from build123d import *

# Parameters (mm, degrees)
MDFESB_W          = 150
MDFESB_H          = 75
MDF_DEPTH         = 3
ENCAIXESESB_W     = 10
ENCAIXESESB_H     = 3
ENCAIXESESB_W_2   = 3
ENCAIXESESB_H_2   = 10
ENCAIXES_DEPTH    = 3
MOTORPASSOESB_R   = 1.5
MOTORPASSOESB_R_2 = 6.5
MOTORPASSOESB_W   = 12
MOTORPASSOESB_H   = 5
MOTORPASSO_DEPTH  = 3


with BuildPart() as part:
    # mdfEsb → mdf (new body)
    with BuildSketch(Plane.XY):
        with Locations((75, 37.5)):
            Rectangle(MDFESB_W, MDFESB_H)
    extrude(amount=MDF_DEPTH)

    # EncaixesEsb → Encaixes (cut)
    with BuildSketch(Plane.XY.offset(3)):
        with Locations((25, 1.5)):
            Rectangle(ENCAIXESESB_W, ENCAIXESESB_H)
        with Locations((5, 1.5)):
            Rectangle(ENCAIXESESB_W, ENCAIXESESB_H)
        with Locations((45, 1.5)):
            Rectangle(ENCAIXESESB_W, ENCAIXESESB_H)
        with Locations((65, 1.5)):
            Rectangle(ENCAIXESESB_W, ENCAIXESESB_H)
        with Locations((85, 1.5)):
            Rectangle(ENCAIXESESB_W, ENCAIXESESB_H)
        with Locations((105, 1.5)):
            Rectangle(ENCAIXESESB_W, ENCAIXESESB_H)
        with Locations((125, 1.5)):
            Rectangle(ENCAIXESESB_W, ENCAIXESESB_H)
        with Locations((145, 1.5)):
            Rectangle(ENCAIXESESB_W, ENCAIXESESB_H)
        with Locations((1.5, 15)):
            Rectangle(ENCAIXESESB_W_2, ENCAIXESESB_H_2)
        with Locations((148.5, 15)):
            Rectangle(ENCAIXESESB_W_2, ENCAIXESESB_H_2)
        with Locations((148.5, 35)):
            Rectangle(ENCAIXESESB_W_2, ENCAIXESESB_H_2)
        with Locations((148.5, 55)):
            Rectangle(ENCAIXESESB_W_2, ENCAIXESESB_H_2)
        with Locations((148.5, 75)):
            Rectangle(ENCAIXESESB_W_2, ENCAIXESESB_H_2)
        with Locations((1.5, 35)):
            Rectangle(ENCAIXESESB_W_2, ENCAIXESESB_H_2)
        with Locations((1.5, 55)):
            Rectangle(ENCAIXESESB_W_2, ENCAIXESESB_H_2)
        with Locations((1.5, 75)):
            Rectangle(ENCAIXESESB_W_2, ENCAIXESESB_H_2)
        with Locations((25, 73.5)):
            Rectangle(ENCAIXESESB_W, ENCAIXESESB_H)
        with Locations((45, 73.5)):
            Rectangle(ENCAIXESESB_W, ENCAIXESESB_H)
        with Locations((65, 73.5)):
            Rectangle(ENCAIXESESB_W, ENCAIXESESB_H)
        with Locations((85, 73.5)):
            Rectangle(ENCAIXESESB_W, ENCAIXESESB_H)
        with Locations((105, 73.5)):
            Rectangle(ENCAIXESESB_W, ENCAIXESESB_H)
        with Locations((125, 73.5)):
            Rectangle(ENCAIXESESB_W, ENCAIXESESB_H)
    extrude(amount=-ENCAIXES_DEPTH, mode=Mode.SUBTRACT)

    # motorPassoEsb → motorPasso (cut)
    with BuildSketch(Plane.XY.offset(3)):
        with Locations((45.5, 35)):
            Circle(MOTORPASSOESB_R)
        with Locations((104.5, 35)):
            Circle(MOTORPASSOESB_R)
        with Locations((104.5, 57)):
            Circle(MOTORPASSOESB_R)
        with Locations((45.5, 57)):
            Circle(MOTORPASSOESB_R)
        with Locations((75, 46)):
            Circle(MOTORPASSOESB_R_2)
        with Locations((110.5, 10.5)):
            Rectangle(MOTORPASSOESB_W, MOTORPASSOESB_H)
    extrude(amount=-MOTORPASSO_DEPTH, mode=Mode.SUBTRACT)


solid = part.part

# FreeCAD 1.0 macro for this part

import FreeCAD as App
import Part
import Sketcher


def add_polygon(sketch, points):
    """Adds a closed chain of lines whose ends are joined by coincident constraints."""
    first, n = sketch.GeometryCount, len(points)
    for a, b in zip(points, points[1:] + points[:1]):
        sketch.addGeometry(Part.LineSegment(App.Vector(*a, 0), App.Vector(*b, 0)), False)
    for i in range(n):
        sketch.addConstraint(Sketcher.Constraint("Coincident", first + i, 2, first + (i + 1) % n, 1))

doc = App.newDocument("Part")
params = doc.addObject("Spreadsheet::Sheet", "Params")
for row, (alias, value) in enumerate([
    ("sketch1_width", "150 mm"),
    ("sketch1_height", "75 mm"),
    ("pad1_length", "3 mm"),
    ("sketch2_width", "10 mm"),
    ("sketch2_width2", "3 mm"),
    ("pocket1_length", "3 mm"),
    ("sketch3_diameter", "3 mm"),
    ("sketch3_diameter2", "13 mm"),
    ("sketch3_width", "12 mm"),
    ("sketch3_height", "5 mm"),
    ("pocket2_length", "3 mm"),
], start=1):
    params.set(f"A{row}", alias)
    params.set(f"B{row}", "=" + value)
    params.setAlias(f"B{row}", alias)

body = doc.addObject("PartDesign::Body", "Body")

# Sketch on XY plane
sketch1 = doc.addObject("Sketcher::SketchObject", "Sketch")
body.addObject(sketch1)
sketch1.AttachmentSupport = (doc.XY_Plane, [""])
sketch1.MapMode = "FlatFace"
add_polygon(sketch1, [(0, 75), (0, 0), (150, 0), (150, 75)])  # lines 0-3
sketch1.addConstraint([
    Sketcher.Constraint("Vertical", 0),
    Sketcher.Constraint("Horizontal", 1),
    Sketcher.Constraint("Vertical", 2),
    Sketcher.Constraint("Horizontal", 3),
    Sketcher.Constraint("Coincident", 0, 2, -1, 1),
    Sketcher.Constraint("DistanceX", 1, 1, 1, 2, 150.0),
    Sketcher.Constraint("DistanceY", 0, 2, 0, 1, 75.0),
])
sketch1.setExpression("Constraints[9]", "Params.sketch1_width")
sketch1.setExpression("Constraints[10]", "Params.sketch1_height")
pad1 = doc.addObject("PartDesign::Pad", "Pad")
body.addObject(pad1)
pad1.Profile = sketch1
pad1.setExpression("Length", "Params.pad1_length")

# Sketch on XY plane
sketch2 = doc.addObject("Sketcher::SketchObject", "Sketch001")
body.addObject(sketch2)
sketch2.AttachmentSupport = (doc.XY_Plane, [""])
sketch2.MapMode = "FlatFace"
sketch2.AttachmentOffset = App.Placement(App.Vector(0, 0, 3), App.Rotation())
add_polygon(sketch2, [(20, 3), (20, 0), (30, 0), (30, 3)])  # lines 0-3
add_polygon(sketch2, [(0, 3), (0, 0), (10, 0), (10, 3)])  # lines 4-7
add_polygon(sketch2, [(40, 3), (40, 0), (50, 0), (50, 3)])  # lines 8-11
add_polygon(sketch2, [(60, 3), (60, 0), (70, 0), (70, 3)])  # lines 12-15
add_polygon(sketch2, [(80, 3), (80, 0), (90, 0), (90, 3)])  # lines 16-19
add_polygon(sketch2, [(100, 3), (100, 0), (110, 0), (110, 3)])  # lines 20-23
add_polygon(sketch2, [(120, 3), (120, 0), (130, 0), (130, 3)])  # lines 24-27
add_polygon(sketch2, [(140, 3), (140, 0), (150, 0), (150, 3)])  # lines 28-31
add_polygon(sketch2, [(0, 20), (0, 10), (3, 10), (3, 20)])  # lines 32-35
add_polygon(sketch2, [(147, 20), (147, 10), (150, 10), (150, 20)])  # lines 36-39
add_polygon(sketch2, [(147, 40), (147, 30), (150, 30), (150, 40)])  # lines 40-43
add_polygon(sketch2, [(147, 60), (147, 50), (150, 50), (150, 60)])  # lines 44-47
add_polygon(sketch2, [(147, 80), (147, 70), (150, 70), (150, 80)])  # lines 48-51
add_polygon(sketch2, [(0, 40), (0, 30), (3, 30), (3, 40)])  # lines 52-55
add_polygon(sketch2, [(0, 60), (0, 50), (3, 50), (3, 60)])  # lines 56-59
add_polygon(sketch2, [(0, 80), (0, 70), (3, 70), (3, 80)])  # lines 60-63
add_polygon(sketch2, [(20, 75), (20, 72), (30, 72), (30, 75)])  # lines 64-67
add_polygon(sketch2, [(40, 75), (40, 72), (50, 72), (50, 75)])  # lines 68-71
add_polygon(sketch2, [(60, 75), (60, 72), (70, 72), (70, 75)])  # lines 72-75
add_polygon(sketch2, [(80, 75), (80, 72), (90, 72), (90, 75)])  # lines 76-79
add_polygon(sketch2, [(100, 75), (100, 72), (110, 72), (110, 75)])  # lines 80-83
add_polygon(sketch2, [(120, 75), (120, 72), (130, 72), (130, 75)])  # lines 84-87
sketch2.addConstraint([
    Sketcher.Constraint("Vertical", 0),
    Sketcher.Constraint("Horizontal", 1),
    Sketcher.Constraint("Vertical", 2),
    Sketcher.Constraint("Horizontal", 3),
    Sketcher.Constraint("Vertical", 4),
    Sketcher.Constraint("Horizontal", 5),
    Sketcher.Constraint("Vertical", 6),
    Sketcher.Constraint("Horizontal", 7),
    Sketcher.Constraint("Vertical", 8),
    Sketcher.Constraint("Horizontal", 9),
    Sketcher.Constraint("Vertical", 10),
    Sketcher.Constraint("Horizontal", 11),
    Sketcher.Constraint("Vertical", 12),
    Sketcher.Constraint("Horizontal", 13),
    Sketcher.Constraint("Vertical", 14),
    Sketcher.Constraint("Horizontal", 15),
    Sketcher.Constraint("Vertical", 16),
    Sketcher.Constraint("Horizontal", 17),
    Sketcher.Constraint("Vertical", 18),
    Sketcher.Constraint("Horizontal", 19),
    Sketcher.Constraint("Vertical", 20),
    Sketcher.Constraint("Horizontal", 21),
    Sketcher.Constraint("Vertical", 22),
    Sketcher.Constraint("Horizontal", 23),
    Sketcher.Constraint("Vertical", 24),
    Sketcher.Constraint("Horizontal", 25),
    Sketcher.Constraint("Vertical", 26),
    Sketcher.Constraint("Horizontal", 27),
    Sketcher.Constraint("Vertical", 28),
    Sketcher.Constraint("Horizontal", 29),
    Sketcher.Constraint("Vertical", 30),
    Sketcher.Constraint("Horizontal", 31),
    Sketcher.Constraint("Vertical", 32),
    Sketcher.Constraint("Horizontal", 33),
    Sketcher.Constraint("Vertical", 34),
    Sketcher.Constraint("Horizontal", 35),
    Sketcher.Constraint("Vertical", 36),
    Sketcher.Constraint("Horizontal", 37),
    Sketcher.Constraint("Vertical", 38),
    Sketcher.Constraint("Horizontal", 39),
    Sketcher.Constraint("Vertical", 40),
    Sketcher.Constraint("Horizontal", 41),
    Sketcher.Constraint("Vertical", 42),
    Sketcher.Constraint("Horizontal", 43),
    Sketcher.Constraint("Vertical", 44),
    Sketcher.Constraint("Horizontal", 45),
    Sketcher.Constraint("Vertical", 46),
    Sketcher.Constraint("Horizontal", 47),
    Sketcher.Constraint("Vertical", 48),
    Sketcher.Constraint("Horizontal", 49),
    Sketcher.Constraint("Vertical", 50),
    Sketcher.Constraint("Horizontal", 51),
    Sketcher.Constraint("Vertical", 52),
    Sketcher.Constraint("Horizontal", 53),
    Sketcher.Constraint("Vertical", 54),
    Sketcher.Constraint("Horizontal", 55),
    Sketcher.Constraint("Vertical", 56),
    Sketcher.Constraint("Horizontal", 57),
    Sketcher.Constraint("Vertical", 58),
    Sketcher.Constraint("Horizontal", 59),
    Sketcher.Constraint("Vertical", 60),
    Sketcher.Constraint("Horizontal", 61),
    Sketcher.Constraint("Vertical", 62),
    Sketcher.Constraint("Horizontal", 63),
    Sketcher.Constraint("Vertical", 64),
    Sketcher.Constraint("Horizontal", 65),
    Sketcher.Constraint("Vertical", 66),
    Sketcher.Constraint("Horizontal", 67),
    Sketcher.Constraint("Vertical", 68),
    Sketcher.Constraint("Horizontal", 69),
    Sketcher.Constraint("Vertical", 70),
    Sketcher.Constraint("Horizontal", 71),
    Sketcher.Constraint("Vertical", 72),
    Sketcher.Constraint("Horizontal", 73),
    Sketcher.Constraint("Vertical", 74),
    Sketcher.Constraint("Horizontal", 75),
    Sketcher.Constraint("Vertical", 76),
    Sketcher.Constraint("Horizontal", 77),
    Sketcher.Constraint("Vertical", 78),
    Sketcher.Constraint("Horizontal", 79),
    Sketcher.Constraint("Vertical", 80),
    Sketcher.Constraint("Horizontal", 81),
    Sketcher.Constraint("Vertical", 82),
    Sketcher.Constraint("Horizontal", 83),
    Sketcher.Constraint("Vertical", 84),
    Sketcher.Constraint("Horizontal", 85),
    Sketcher.Constraint("Vertical", 86),
    Sketcher.Constraint("Horizontal", 87),
    Sketcher.Constraint("Coincident", 4, 2, -1, 1),
    Sketcher.Constraint("PointOnObject", 0, 2, -1),
    Sketcher.Constraint("PointOnObject", 8, 2, -1),
    Sketcher.Constraint("PointOnObject", 12, 2, -1),
    Sketcher.Constraint("PointOnObject", 16, 2, -1),
    Sketcher.Constraint("PointOnObject", 20, 2, -1),
    Sketcher.Constraint("PointOnObject", 24, 2, -1),
    Sketcher.Constraint("PointOnObject", 28, 2, -1),
    Sketcher.Constraint("PointOnObject", 32, 2, -2),
    Sketcher.Constraint("PointOnObject", 52, 2, -2),
    Sketcher.Constraint("PointOnObject", 56, 2, -2),
    Sketcher.Constraint("PointOnObject", 60, 2, -2),
    Sketcher.Constraint("Horizontal", 3, 2, 6, 2),
    Sketcher.Constraint("Horizontal", 7, 2, 10, 2),
    Sketcher.Constraint("Horizontal", 11, 2, 14, 2),
    Sketcher.Constraint("Horizontal", 15, 2, 18, 2),
    Sketcher.Constraint("Horizontal", 19, 2, 22, 2),
    Sketcher.Constraint("Horizontal", 23, 2, 26, 2),
    Sketcher.Constraint("Horizontal", 27, 2, 30, 2),
    Sketcher.Constraint("Horizontal", 33, 2, 36, 2),
    Sketcher.Constraint("Horizontal", 35, 2, 38, 2),
    Sketcher.Constraint("Horizontal", 41, 2, 52, 2),
    Sketcher.Constraint("Horizontal", 43, 2, 54, 2),
    Sketcher.Constraint("Horizontal", 45, 2, 56, 2),
    Sketcher.Constraint("Horizontal", 47, 2, 58, 2),
    Sketcher.Constraint("Horizontal", 49, 2, 60, 2),
    Sketcher.Constraint("Horizontal", 51, 2, 62, 2),
    Sketcher.Constraint("Horizontal", 65, 2, 68, 2),
    Sketcher.Constraint("Horizontal", 67, 2, 70, 2),
    Sketcher.Constraint("Horizontal", 69, 2, 72, 2),
    Sketcher.Constraint("Horizontal", 71, 2, 74, 2),
    Sketcher.Constraint("Horizontal", 73, 2, 76, 2),
    Sketcher.Constraint("Horizontal", 75, 2, 78, 2),
    Sketcher.Constraint("Horizontal", 77, 2, 80, 2),
    Sketcher.Constraint("Horizontal", 79, 2, 82, 2),
    Sketcher.Constraint("Horizontal", 81, 2, 84, 2),
    Sketcher.Constraint("Horizontal", 83, 2, 86, 2),
    Sketcher.Constraint("Vertical", 30, 2, 37, 2),
    Sketcher.Constraint("Vertical", 39, 2, 40, 2),
    Sketcher.Constraint("Vertical", 38, 2, 41, 2),
    Sketcher.Constraint("Vertical", 43, 2, 44, 2),
    Sketcher.Constraint("Vertical", 42, 2, 45, 2),
    Sketcher.Constraint("Vertical", 47, 2, 48, 2),
    Sketcher.Constraint("Vertical", 46, 2, 49, 2),
    Sketcher.Constraint("Vertical", 34, 2, 53, 2),
    Sketcher.Constraint("Vertical", 54, 2, 57, 2),
    Sketcher.Constraint("Vertical", 58, 2, 61, 2),
    Sketcher.Constraint("Vertical", 3, 2, 64, 2),
    Sketcher.Constraint("Vertical", 2, 2, 65, 2),
    Sketcher.Constraint("Vertical", 11, 2, 68, 2),
    Sketcher.Constraint("Vertical", 10, 2, 69, 2),
    Sketcher.Constraint("Vertical", 15, 2, 72, 2),
    Sketcher.Constraint("Vertical", 14, 2, 73, 2),
    Sketcher.Constraint("Vertical", 19, 2, 76, 2),
    Sketcher.Constraint("Vertical", 18, 2, 77, 2),
    Sketcher.Constraint("Vertical", 23, 2, 80, 2),
    Sketcher.Constraint("Vertical", 22, 2, 81, 2),
    Sketcher.Constraint("Vertical", 27, 2, 84, 2),
    Sketcher.Constraint("Vertical", 26, 2, 85, 2),
    Sketcher.Constraint("Equal", 3, 5),
    Sketcher.Constraint("Equal", 7, 9),
    Sketcher.Constraint("Equal", 11, 13),
    Sketcher.Constraint("Equal", 15, 17),
    Sketcher.Constraint("Equal", 19, 21),
    Sketcher.Constraint("Equal", 23, 25),
    Sketcher.Constraint("Equal", 27, 29),
    Sketcher.Constraint("Equal", 35, 37),
    Sketcher.Constraint("Equal", 63, 0),
    Sketcher.Constraint("Equal", 87, 32),
    Sketcher.Constraint("Equal", 38, 40),
    Sketcher.Constraint("Equal", 42, 44),
    Sketcher.Constraint("Equal", 46, 48),
    Sketcher.Constraint("Equal", 30, 64),
    Sketcher.Constraint("DistanceX", 1, 1, 1, 2, 10.0),
    Sketcher.Constraint("DistanceX", 33, 1, 33, 2, 3.0),
    Sketcher.Constraint("DistanceX", -1, 1, 0, 2, 20.0),
    Sketcher.Constraint("DistanceX", -1, 1, 8, 2, 40.0),
    Sketcher.Constraint("DistanceX", -1, 1, 12, 2, 60.0),
    Sketcher.Constraint("DistanceX", -1, 1, 16, 2, 80.0),
    Sketcher.Constraint("DistanceX", -1, 1, 20, 2, 100.0),
    Sketcher.Constraint("DistanceX", -1, 1, 24, 2, 120.0),
    Sketcher.Constraint("DistanceX", -1, 1, 28, 2, 140.0),
    Sketcher.Constraint("DistanceY", -1, 1, 32, 2, 10.0),
    Sketcher.Constraint("DistanceY", -1, 1, 40, 2, 30.0),
    Sketcher.Constraint("DistanceY", -1, 1, 44, 2, 50.0),
    Sketcher.Constraint("DistanceY", -1, 1, 48, 2, 70.0),
    Sketcher.Constraint("DistanceY", -1, 1, 64, 2, 72.0),
])
sketch2.setExpression("Constraints[249]", "Params.sketch2_width")
sketch2.setExpression("Constraints[250]", "Params.sketch2_width2")
pocket1 = doc.addObject("PartDesign::Pocket", "Pocket")
body.addObject(pocket1)
pocket1.Profile = sketch2
pocket1.setExpression("Length", "Params.pocket1_length")

# Sketch on XY plane
sketch3 = doc.addObject("Sketcher::SketchObject", "Sketch002")
body.addObject(sketch3)
sketch3.AttachmentSupport = (doc.XY_Plane, [""])
sketch3.MapMode = "FlatFace"
sketch3.AttachmentOffset = App.Placement(App.Vector(0, 0, 3), App.Rotation())
sketch3.addGeometry(Part.Circle(App.Vector(45.5, 35, 0), App.Vector(0, 0, 1), 1.5), False)  # 0
sketch3.addGeometry(Part.Circle(App.Vector(104.5, 35, 0), App.Vector(0, 0, 1), 1.5), False)  # 1
sketch3.addGeometry(Part.Circle(App.Vector(104.5, 57, 0), App.Vector(0, 0, 1), 1.5), False)  # 2
sketch3.addGeometry(Part.Circle(App.Vector(45.5, 57, 0), App.Vector(0, 0, 1), 1.5), False)  # 3
sketch3.addGeometry(Part.Circle(App.Vector(75, 46, 0), App.Vector(0, 0, 1), 6.5), False)  # 4
add_polygon(sketch3, [(104.5, 13), (104.5, 8), (116.5, 8), (116.5, 13)])  # lines 5-8
sketch3.addConstraint([
    Sketcher.Constraint("Vertical", 5),
    Sketcher.Constraint("Horizontal", 6),
    Sketcher.Constraint("Vertical", 7),
    Sketcher.Constraint("Horizontal", 8),
    Sketcher.Constraint("Equal", 0, 1),
    Sketcher.Constraint("Equal", 1, 2),
    Sketcher.Constraint("Equal", 2, 3),
    Sketcher.Constraint("Horizontal", 0, 3, 1, 3),
    Sketcher.Constraint("Horizontal", 2, 3, 3, 3),
    Sketcher.Constraint("Vertical", 1, 3, 2, 3),
    Sketcher.Constraint("Vertical", 0, 3, 3, 3),
    Sketcher.Constraint("Vertical", 2, 3, 5, 2),
    Sketcher.Constraint("Diameter", 0, 3.0),
    Sketcher.Constraint("Diameter", 4, 13.0),
    Sketcher.Constraint("DistanceX", 6, 1, 6, 2, 12.0),
    Sketcher.Constraint("DistanceY", 5, 2, 5, 1, 5.0),
    Sketcher.Constraint("DistanceY", -1, 1, 0, 3, 35.0),
    Sketcher.Constraint("DistanceY", -1, 1, 2, 3, 57.0),
    Sketcher.Constraint("DistanceX", -1, 1, 4, 3, 75.0),
    Sketcher.Constraint("DistanceY", -1, 1, 4, 3, 46.0),
    Sketcher.Constraint("DistanceY", -1, 1, 5, 2, 8.0),
    Sketcher.Constraint("DistanceX", 0, 3, 1, 3, 59.0),
    Sketcher.Constraint("DistanceX", -1, 1, 0, 3, 45.5),
])
sketch3.setExpression("Constraints[16]", "Params.sketch3_diameter")
sketch3.setExpression("Constraints[17]", "Params.sketch3_diameter2")
sketch3.setExpression("Constraints[18]", "Params.sketch3_width")
sketch3.setExpression("Constraints[19]", "Params.sketch3_height")
pocket2 = doc.addObject("PartDesign::Pocket", "Pocket001")
body.addObject(pocket2)
pocket2.Profile = sketch3
pocket2.setExpression("Length", "Params.pocket2_length")

doc.recompute()
